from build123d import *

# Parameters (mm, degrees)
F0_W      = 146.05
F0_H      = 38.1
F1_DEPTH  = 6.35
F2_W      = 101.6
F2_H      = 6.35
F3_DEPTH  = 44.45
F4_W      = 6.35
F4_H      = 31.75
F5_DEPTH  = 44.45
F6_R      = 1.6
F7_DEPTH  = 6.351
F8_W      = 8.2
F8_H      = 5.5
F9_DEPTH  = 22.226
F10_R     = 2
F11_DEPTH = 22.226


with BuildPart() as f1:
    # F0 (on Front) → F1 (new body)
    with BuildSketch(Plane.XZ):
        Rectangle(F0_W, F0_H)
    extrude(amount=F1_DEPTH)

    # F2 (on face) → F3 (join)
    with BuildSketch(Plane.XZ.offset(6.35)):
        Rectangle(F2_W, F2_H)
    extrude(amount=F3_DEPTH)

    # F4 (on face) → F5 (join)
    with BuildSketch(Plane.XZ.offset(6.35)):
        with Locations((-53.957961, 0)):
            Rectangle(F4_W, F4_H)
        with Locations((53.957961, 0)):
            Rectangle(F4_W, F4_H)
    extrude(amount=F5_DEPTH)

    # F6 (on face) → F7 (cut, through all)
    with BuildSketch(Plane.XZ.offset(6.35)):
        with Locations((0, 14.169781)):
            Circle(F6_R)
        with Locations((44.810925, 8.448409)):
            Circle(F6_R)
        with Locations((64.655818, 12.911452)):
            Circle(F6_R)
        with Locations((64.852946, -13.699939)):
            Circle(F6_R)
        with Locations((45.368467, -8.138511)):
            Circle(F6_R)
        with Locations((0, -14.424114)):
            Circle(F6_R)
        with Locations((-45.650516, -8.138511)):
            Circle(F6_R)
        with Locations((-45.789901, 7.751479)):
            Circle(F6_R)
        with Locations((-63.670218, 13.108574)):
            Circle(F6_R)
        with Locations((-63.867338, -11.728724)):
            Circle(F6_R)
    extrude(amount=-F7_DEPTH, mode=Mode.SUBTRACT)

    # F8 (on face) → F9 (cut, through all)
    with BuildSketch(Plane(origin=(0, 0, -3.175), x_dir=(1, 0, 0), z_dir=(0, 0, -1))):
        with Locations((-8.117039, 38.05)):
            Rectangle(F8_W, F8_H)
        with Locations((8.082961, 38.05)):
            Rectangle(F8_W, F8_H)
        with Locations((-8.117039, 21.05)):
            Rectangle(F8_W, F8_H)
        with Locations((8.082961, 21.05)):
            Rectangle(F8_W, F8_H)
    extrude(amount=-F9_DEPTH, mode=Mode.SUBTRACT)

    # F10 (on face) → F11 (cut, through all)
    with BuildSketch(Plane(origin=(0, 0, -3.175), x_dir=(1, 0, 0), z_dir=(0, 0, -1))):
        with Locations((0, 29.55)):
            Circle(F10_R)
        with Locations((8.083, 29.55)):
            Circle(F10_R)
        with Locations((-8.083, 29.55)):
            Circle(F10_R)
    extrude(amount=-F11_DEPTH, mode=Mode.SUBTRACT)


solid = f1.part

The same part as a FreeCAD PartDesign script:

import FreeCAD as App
import Part
import Sketcher
Q = App.Units.Quantity


def add_polygon(sketch, points):
    """Adds a closed chain of lines whose ends are joined by coincident constraints."""
    first, n = sketch.GeometryCount, len(points)
    for a, b in zip(points, points[1:] + points[:1]):
        sketch.addGeometry(Part.LineSegment(App.Vector(*a, 0), App.Vector(*b, 0)), False)
    for i in range(n):
        sketch.addConstraint(Sketcher.Constraint("Coincident", first + i, 2, first + (i + 1) % n, 1))

doc = App.newDocument("Part")
body = doc.addObject("PartDesign::Body", "Body")

sketch1 = body.newObject("Sketcher::SketchObject", "Sketch")
sketch1.AttachmentSupport = (doc.getObject("XZ_Plane"), [""])
sketch1.MapMode = "FlatFace"
add_polygon(sketch1, [(-73, 19), (-73, -19), (73, -19), (73, 19)])
sketch1.addConstraint([
    Sketcher.Constraint("Vertical", 0),
    Sketcher.Constraint("Horizontal", 1),
    Sketcher.Constraint("Vertical", 2),
    Sketcher.Constraint("Horizontal", 3),
    Sketcher.Constraint("Symmetric", 0, 2, 2, 2, -1, 1),
    Sketcher.Constraint("DistanceY", 0, 2, 0, 1, Q("1.5 in")),
    Sketcher.Constraint("DistanceX", 1, 1, 1, 2, Q("5.75 in")),
])
pad1 = body.newObject("PartDesign::Pad", "Pad")
pad1.Profile = sketch1
pad1.Length = Q("0.25 in")

sketch2 = body.newObject("Sketcher::SketchObject", "Sketch001")
sketch2.AttachmentSupport = (doc.getObject("XZ_Plane"), [""])
sketch2.MapMode = "FlatFace"
sketch2.AttachmentOffset = App.Placement(App.Vector(0, 0, 0.25 * 25.4), App.Rotation())
add_polygon(sketch2, [(-51, 3), (-51, -3), (51, -3), (51, 3)])
sketch2.addConstraint([
    Sketcher.Constraint("Vertical", 0),
    Sketcher.Constraint("Horizontal", 1),
    Sketcher.Constraint("Vertical", 2),
    Sketcher.Constraint("Horizontal", 3),
    Sketcher.Constraint("Symmetric", 0, 2, 2, 2, -1, 1),
    Sketcher.Constraint("DistanceX", 1, 1, 1, 2, Q("4 in")),
    Sketcher.Constraint("DistanceY", 0, 2, 0, 1, Q("0.25 in")),
])
pad2 = body.newObject("PartDesign::Pad", "Pad001")
pad2.Profile = sketch2
pad2.Length = Q("1.75 in")

sketch3 = body.newObject("Sketcher::SketchObject", "Sketch002")
sketch3.AttachmentSupport = (doc.getObject("XZ_Plane"), [""])
sketch3.MapMode = "FlatFace"
sketch3.AttachmentOffset = App.Placement(App.Vector(0, 0, 0.25 * 25.4), App.Rotation())
add_polygon(sketch3, [(-57, 16), (-57, -16), (-51, -16), (-51, 16)])
add_polygon(sketch3, [(51, 16), (51, -16), (57, -16), (57, 16)])
sketch3.addConstraint([
    Sketcher.Constraint("Vertical", 0),
    Sketcher.Constraint("Horizontal", 1),
    Sketcher.Constraint("Vertical", 2),
    Sketcher.Constraint("Horizontal", 3),
    Sketcher.Constraint("Vertical", 4),
    Sketcher.Constraint("Horizontal", 5),
    Sketcher.Constraint("Vertical", 6),
    Sketcher.Constraint("Horizontal", 7),
    Sketcher.Constraint("Symmetric", 2, 2, 4, 2, -1, 1),
    Sketcher.Constraint("Symmetric", 0, 2, 6, 2, -1, 1),
    Sketcher.Constraint("Horizontal", 1, 2, 4, 2),
    Sketcher.Constraint("DistanceX", 1, 1, 1, 2, Q("0.25 in")),
    Sketcher.Constraint("DistanceY", 0, 2, 0, 1, Q("1.25 in")),
    Sketcher.Constraint("DistanceX", 0, 2, -1, 1, Q("57.132961 mm")),
])
pad3 = body.newObject("PartDesign::Pad", "Pad002")
pad3.Profile = sketch3
pad3.Length = Q("1.75 in")

sketch4 = body.newObject("Sketcher::SketchObject", "Sketch003")
sketch4.AttachmentSupport = (doc.getObject("XZ_Plane"), [""])
sketch4.MapMode = "FlatFace"
sketch4.AttachmentOffset = App.Placement(App.Vector(0, 0, 0.25 * 25.4), App.Rotation())
sketch4.addGeometry([
    Part.Circle(App.Vector(0, 14.2, 0), App.Vector(0, 0, 1), 1.6),
    Part.Circle(App.Vector(44.8, 8.4, 0), App.Vector(0, 0, 1), 1.6),
    Part.Circle(App.Vector(64.7, 12.9, 0), App.Vector(0, 0, 1), 1.6),
    Part.Circle(App.Vector(64.9, -13.7, 0), App.Vector(0, 0, 1), 1.6),
    Part.Circle(App.Vector(45.4, -8.1, 0), App.Vector(0, 0, 1), 1.6),
    Part.Circle(App.Vector(0, -14.4, 0), App.Vector(0, 0, 1), 1.6),
    Part.Circle(App.Vector(-45.7, -8.1, 0), App.Vector(0, 0, 1), 1.6),
    Part.Circle(App.Vector(-45.8, 7.8, 0), App.Vector(0, 0, 1), 1.6),
    Part.Circle(App.Vector(-63.7, 13.1, 0), App.Vector(0, 0, 1), 1.6),
    Part.Circle(App.Vector(-63.9, -11.7, 0), App.Vector(0, 0, 1), 1.6),
], False)
sketch4.addConstraint([
    Sketcher.Constraint("Equal", 0, 1),
    Sketcher.Constraint("Equal", 1, 2),
    Sketcher.Constraint("Equal", 2, 3),
    Sketcher.Constraint("Equal", 3, 4),
    Sketcher.Constraint("Equal", 4, 5),
    Sketcher.Constraint("Equal", 5, 6),
    Sketcher.Constraint("Equal", 6, 7),
    Sketcher.Constraint("Equal", 7, 8),
    Sketcher.Constraint("Equal", 8, 9),
    Sketcher.Constraint("PointOnObject", 0, 3, -2),
    Sketcher.Constraint("PointOnObject", 5, 3, -2),
    Sketcher.Constraint("Horizontal", 4, 3, 6, 3),
    Sketcher.Constraint("Diameter", 0, Q("3.2 mm")),
    Sketcher.Constraint("DistanceX", 7, 3, -1, 1, Q("45.789901 mm")),
    Sketcher.Constraint("DistanceX", 8, 3, 6, 3, Q("18.019702 mm")),
    Sketcher.Constraint("DistanceY", 9, 3, 8, 3, Q("24.837298 mm")),
    Sketcher.Constraint("DistanceY", -1, 1, 0, 3, Q("14.169781 mm")),
    Sketcher.Constraint("DistanceY", -1, 1, 1, 3, Q("8.448409 mm")),
    Sketcher.Constraint("DistanceY", 3, 3, -1, 1, Q("13.699939 mm")),
    Sketcher.Constraint("DistanceY", 4, 3, -1, 1, Q("8.138511 mm")),
    Sketcher.Constraint("DistanceY", -1, 1, 7, 3, Q("7.751479 mm")),
    Sketcher.Constraint("DistanceY", 2, 3, 0, 3, Q("1.258329 mm")),
    Sketcher.Constraint("DistanceX", 2, 3, 3, 3, Q("0.197128 mm")),
    Sketcher.Constraint("DistanceX", 1, 3, 3, 3, Q("20.042021 mm")),
    Sketcher.Constraint("DistanceX", 4, 3, 3, 3, Q("19.484479 mm")),
    Sketcher.Constraint("DistanceX", 6, 3, 1, 3, Q("90.461441 mm")),
    Sketcher.Constraint("DistanceY", 5, 3, 8, 3, Q("27.532688 mm")),
    Sketcher.Constraint("DistanceX", 9, 3, 6, 3, Q("18.216822 mm")),
    Sketcher.Constraint("DistanceX", -1, 1, 1, 3, Q("44.810925 mm")),
    Sketcher.Constraint("DistanceY", 5, 3, -1, 1, Q("14.424114 mm")),
])
pocket1 = body.newObject("PartDesign::Pocket", "Pocket")
pocket1.Profile = sketch4
pocket1.Type = "ThroughAll"

sketch5 = body.newObject("Sketcher::SketchObject", "Sketch004")
sketch5.AttachmentSupport = (doc.getObject("XY_Plane"), [""])
sketch5.MapMode = "FlatFace"
sketch5.AttachmentOffset = App.Placement(App.Vector(0, 0, -0.125 * 25.4), App.Rotation())
add_polygon(sketch5, [(-12, -41), (-12, -35), (-4, -35), (-4, -41)])
add_polygon(sketch5, [(4, -41), (4, -35), (12, -35), (12, -41)])
add_polygon(sketch5, [(-12, -24), (-12, -18), (-4, -18), (-4, -24)])
add_polygon(sketch5, [(4, -24), (4, -18), (12, -18), (12, -24)])
sketch5.addConstraint([
    Sketcher.Constraint("Vertical", 0),
    Sketcher.Constraint("Horizontal", 1),
    Sketcher.Constraint("Vertical", 2),
    Sketcher.Constraint("Horizontal", 3),
    Sketcher.Constraint("Vertical", 4),
    Sketcher.Constraint("Horizontal", 5),
    Sketcher.Constraint("Vertical", 6),
    Sketcher.Constraint("Horizontal", 7),
    Sketcher.Constraint("Vertical", 8),
    Sketcher.Constraint("Horizontal", 9),
    Sketcher.Constraint("Vertical", 10),
    Sketcher.Constraint("Horizontal", 11),
    Sketcher.Constraint("Vertical", 12),
    Sketcher.Constraint("Horizontal", 13),
    Sketcher.Constraint("Vertical", 14),
    Sketcher.Constraint("Horizontal", 15),
    Sketcher.Constraint("Horizontal", 1, 2, 4, 2),
    Sketcher.Constraint("Horizontal", 3, 2, 6, 2),
    Sketcher.Constraint("Horizontal", 9, 2, 12, 2),
    Sketcher.Constraint("Horizontal", 11, 2, 14, 2),
    Sketcher.Constraint("Vertical", 3, 2, 8, 2),
    Sketcher.Constraint("Vertical", 2, 2, 9, 2),
    Sketcher.Constraint("Vertical", 7, 2, 12, 2),
    Sketcher.Constraint("Vertical", 6, 2, 13, 2),
    Sketcher.Constraint("Equal", 3, 5),
    Sketcher.Constraint("Equal", 6, 8),
    Sketcher.Constraint("DistanceX", 1, 1, 1, 2, Q("8.2 mm")),
    Sketcher.Constraint("DistanceY", 0, 1, 0, 2, Q("5.5 mm")),
    Sketcher.Constraint("DistanceY", 0, 2, -1, 1, Q("35.3 mm")),
    Sketcher.Constraint("DistanceY", 8, 2, -1, 1, Q("18.3 mm")),
    Sketcher.Constraint("DistanceX", 1, 2, 4, 2, Q("8 mm")),
    Sketcher.Constraint("DistanceX", 0, 2, -1, 1, Q("12.217039 mm")),
])
pocket2 = body.newObject("PartDesign::Pocket", "Pocket001")
pocket2.Profile = sketch5
pocket2.Type = "ThroughAll"
pocket2.Reversed = True

sketch6 = body.newObject("Sketcher::SketchObject", "Sketch005")
sketch6.AttachmentSupport = (doc.getObject("XY_Plane"), [""])
sketch6.MapMode = "FlatFace"
sketch6.AttachmentOffset = App.Placement(App.Vector(0, 0, -0.125 * 25.4), App.Rotation())
sketch6.addGeometry([
    Part.Circle(App.Vector(0, -29.6, 0), App.Vector(0, 0, 1), 2),
    Part.Circle(App.Vector(8.1, -29.6, 0), App.Vector(0, 0, 1), 2),
    Part.Circle(App.Vector(-8.1, -29.6, 0), App.Vector(0, 0, 1), 2),
], False)
sketch6.addConstraint([
    Sketcher.Constraint("Equal", 0, 1),
    Sketcher.Constraint("Equal", 1, 2),
    Sketcher.Constraint("Symmetric", 1, 3, 2, 3, -2),
    Sketcher.Constraint("PointOnObject", 0, 3, -2),
    Sketcher.Constraint("Horizontal", 0, 3, 1, 3),
    Sketcher.Constraint("Diameter", 0, Q("4 mm")),
    Sketcher.Constraint("DistanceY", 0, 3, -1, 1, Q("29.55 mm")),
    Sketcher.Constraint("DistanceX", -1, 1, 1, 3, Q("8.083 mm")),
])
pocket3 = body.newObject("PartDesign::Pocket", "Pocket002")
pocket3.Profile = sketch6
pocket3.Type = "ThroughAll"
pocket3.Reversed = True

doc.recompute()
